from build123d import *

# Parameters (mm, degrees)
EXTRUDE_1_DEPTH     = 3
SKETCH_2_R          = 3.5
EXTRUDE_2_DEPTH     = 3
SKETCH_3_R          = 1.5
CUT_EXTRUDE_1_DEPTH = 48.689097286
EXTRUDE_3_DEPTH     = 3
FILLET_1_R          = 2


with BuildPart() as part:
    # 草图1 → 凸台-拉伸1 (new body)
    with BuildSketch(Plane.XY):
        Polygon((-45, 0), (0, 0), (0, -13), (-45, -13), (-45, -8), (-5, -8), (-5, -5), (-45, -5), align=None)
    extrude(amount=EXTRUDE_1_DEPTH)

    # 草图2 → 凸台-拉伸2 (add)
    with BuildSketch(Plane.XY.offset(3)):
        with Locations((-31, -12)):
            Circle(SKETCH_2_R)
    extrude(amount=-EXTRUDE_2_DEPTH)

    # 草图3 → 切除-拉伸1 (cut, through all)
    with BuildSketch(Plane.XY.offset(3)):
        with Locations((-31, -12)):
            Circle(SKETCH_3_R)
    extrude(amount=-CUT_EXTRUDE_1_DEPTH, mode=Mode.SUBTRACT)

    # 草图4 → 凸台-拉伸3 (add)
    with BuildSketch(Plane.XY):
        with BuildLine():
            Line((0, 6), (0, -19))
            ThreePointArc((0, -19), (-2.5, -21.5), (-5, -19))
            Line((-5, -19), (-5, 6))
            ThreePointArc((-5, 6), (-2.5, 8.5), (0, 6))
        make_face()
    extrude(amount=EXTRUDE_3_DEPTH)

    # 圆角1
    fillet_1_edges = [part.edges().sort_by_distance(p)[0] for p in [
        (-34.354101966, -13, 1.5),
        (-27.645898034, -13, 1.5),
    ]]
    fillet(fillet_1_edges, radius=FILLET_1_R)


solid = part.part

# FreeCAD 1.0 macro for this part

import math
import FreeCAD as App
import Part
import Sketcher

V = App.Vector


def edges_at(feature, points):
    """Names of the edges that pass closest to the given points."""
    edges = feature.Shape.Edges
    near = lambda p: min(range(len(edges)), key=lambda i: edges[i].distToShape(Part.Vertex(*p))[0])
    return sorted({f"Edge{near(p) + 1}" for p in points})

doc = App.newDocument("Part")
params = doc.addObject("Spreadsheet::Sheet", "Params")
for row, (alias, value) in enumerate([
    ("sketch1_width", "45 mm"),
    ("sketch1_width2", "40 mm"),
    ("sketch1_height", "5 mm"),
    ("sketch1_height2", "3 mm"),
    ("pad1_length", "3 mm"),
    ("sketch2_diameter", "7 mm"),
    ("pad2_length", "3 mm"),
    ("sketch3_diameter", "3 mm"),
    ("sketch4_radius", "2.5 mm"),
    ("sketch4_height", "25 mm"),
    ("pad3_length", "3 mm"),
    ("fillet_radius", "2 mm"),
], start=1):
    params.set(f"A{row}", alias)
    params.set(f"B{row}", "=" + value)
    params.setAlias(f"B{row}", alias)

body = doc.addObject("PartDesign::Body", "Body")

# Sketch on XY plane
sketch1 = doc.addObject("Sketcher::SketchObject", "Sketch")
body.addObject(sketch1)
sketch1.AttachmentSupport = (doc.XY_Plane, [""])
sketch1.MapMode = "FlatFace"
sketch1.addGeometry([
    Part.LineSegment(V(0, 0, 0), V(-45, 0, 0)),  # 0
    Part.LineSegment(V(-45, 0, 0), V(-45, -5, 0)),  # 1
    Part.LineSegment(V(-45, -5, 0), V(-5, -5, 0)),  # 2
    Part.LineSegment(V(-5, -5, 0), V(-5, -8, 0)),  # 3
    Part.LineSegment(V(-5, -8, 0), V(-45, -8, 0)),  # 4
    Part.LineSegment(V(-45, -8, 0), V(-45, -13, 0)),  # 5
    Part.LineSegment(V(-45, -13, 0), V(0, -13, 0)),  # 6
    Part.LineSegment(V(0, -13, 0), V(0, 0, 0)),  # 7
], False)
sketch1.addConstraint([
    Sketcher.Constraint("Coincident", 0, 2, 1, 1),
    Sketcher.Constraint("Coincident", 1, 2, 2, 1),
    Sketcher.Constraint("Coincident", 2, 2, 3, 1),
    Sketcher.Constraint("Coincident", 3, 2, 4, 1),
    Sketcher.Constraint("Coincident", 4, 2, 5, 1),
    Sketcher.Constraint("Coincident", 5, 2, 6, 1),
    Sketcher.Constraint("Coincident", 6, 2, 7, 1),
    Sketcher.Constraint("Coincident", 7, 2, 0, 1),
    Sketcher.Constraint("Horizontal", 0),
    Sketcher.Constraint("Vertical", 1),
    Sketcher.Constraint("Horizontal", 2),
    Sketcher.Constraint("Vertical", 3),
    Sketcher.Constraint("Horizontal", 4),
    Sketcher.Constraint("Vertical", 5),
    Sketcher.Constraint("Horizontal", 6),
    Sketcher.Constraint("Vertical", 7),
    Sketcher.Constraint("Coincident", 7, 2, -1, 1),
    Sketcher.Constraint("Vertical", 1, 2, 4, 2),
    Sketcher.Constraint("Equal", 1, 5),
    Sketcher.Constraint("DistanceX", 0, 2, 0, 1, 45.0),
    Sketcher.Constraint("DistanceX", 2, 1, 2, 2, 40.0),
    Sketcher.Constraint("DistanceY", 1, 2, 1, 1, 5.0),
    Sketcher.Constraint("DistanceY", 3, 2, 3, 1, 3.0),
])
sketch1.setExpression("Constraints[19]", "Params.sketch1_width")
sketch1.setExpression("Constraints[20]", "Params.sketch1_width2")
sketch1.setExpression("Constraints[21]", "Params.sketch1_height")
sketch1.setExpression("Constraints[22]", "Params.sketch1_height2")
pad1 = doc.addObject("PartDesign::Pad", "Pad")
body.addObject(pad1)
pad1.Profile = sketch1
pad1.setExpression("Length", "Params.pad1_length")

# Sketch on XY plane
sketch2 = doc.addObject("Sketcher::SketchObject", "Sketch001")
body.addObject(sketch2)
sketch2.AttachmentSupport = (doc.XY_Plane, [""])
sketch2.MapMode = "FlatFace"
sketch2.AttachmentOffset = App.Placement(V(0, 0, 3), App.Rotation())
sketch2.addGeometry(Part.Circle(V(-31, -12, 0), V(0, 0, 1), 3.5), False)
sketch2.addConstraint([
    Sketcher.Constraint("Diameter", 0, 7.0),
    Sketcher.Constraint("DistanceX", 0, 3, -1, 1, 31.0),
    Sketcher.Constraint("DistanceY", 0, 3, -1, 1, 12.0),
])
sketch2.setExpression("Constraints[0]", "Params.sketch2_diameter")
pad2 = doc.addObject("PartDesign::Pad", "Pad001")
body.addObject(pad2)
pad2.Profile = sketch2
pad2.setExpression("Length", "Params.pad2_length")
pad2.Reversed = True

# Sketch on XY plane
sketch3 = doc.addObject("Sketcher::SketchObject", "Sketch002")
body.addObject(sketch3)
sketch3.AttachmentSupport = (doc.XY_Plane, [""])
sketch3.MapMode = "FlatFace"
sketch3.AttachmentOffset = App.Placement(V(0, 0, 3), App.Rotation())
sketch3.addGeometry(Part.Circle(V(-31, -12, 0), V(0, 0, 1), 1.5), False)
sketch3.addConstraint([
    Sketcher.Constraint("Diameter", 0, 3.0),
    Sketcher.Constraint("DistanceX", 0, 3, -1, 1, 31.0),
    Sketcher.Constraint("DistanceY", 0, 3, -1, 1, 12.0),
])
sketch3.setExpression("Constraints[0]", "Params.sketch3_diameter")
pocket1 = doc.addObject("PartDesign::Pocket", "Pocket")
body.addObject(pocket1)
pocket1.Profile = sketch3
pocket1.Type = "ThroughAll"

# Sketch on XY plane
sketch4 = doc.addObject("Sketcher::SketchObject", "Sketch003")
body.addObject(sketch4)
sketch4.AttachmentSupport = (doc.XY_Plane, [""])
sketch4.MapMode = "FlatFace"
sketch4.addGeometry([
    Part.LineSegment(V(0, -19, 0), V(0, 6, 0)),
    Part.ArcOfCircle(Part.Circle(V(-2.5, 6, 0), V(0, 0, 1), 2.5), math.radians(0), math.radians(180)),
    Part.LineSegment(V(-5, 6, 0), V(-5, -19, 0)),
    Part.ArcOfCircle(Part.Circle(V(-2.5, -19, 0), V(0, 0, 1), 2.5), math.radians(180), math.radians(360)),
], False)
sketch4.addConstraint([
    Sketcher.Constraint("Tangent", 0, 2, 1, 1),
    Sketcher.Constraint("Tangent", 1, 2, 2, 1),
    Sketcher.Constraint("Tangent", 2, 2, 3, 1),
    Sketcher.Constraint("Tangent", 3, 2, 0, 1),
    Sketcher.Constraint("Vertical", 0),
    Sketcher.Constraint("Vertical", 2),
    Sketcher.Constraint("PointOnObject", 0, 2, -2),
    Sketcher.Constraint("Radius", 1, 2.5),
    Sketcher.Constraint("DistanceY", 0, 1, 0, 2, 25.0),
    Sketcher.Constraint("DistanceY", -1, 1, 1, 3, 6.0),
])
sketch4.setExpression("Constraints[7]", "Params.sketch4_radius")
sketch4.setExpression("Constraints[8]", "Params.sketch4_height")
pad3 = doc.addObject("PartDesign::Pad", "Pad002")
body.addObject(pad3)
pad3.Profile = sketch4
pad3.setExpression("Length", "Params.pad3_length")
doc.recompute()

fillet = doc.addObject("PartDesign::Fillet", "Fillet")
body.addObject(fillet)
fillet.Base = (pad3, edges_at(pad3, [(-34.354, -13, 1.5), (-27.646, -13, 1.5)]))
fillet.setExpression("Radius", "Params.fillet_radius")

doc.recompute()
